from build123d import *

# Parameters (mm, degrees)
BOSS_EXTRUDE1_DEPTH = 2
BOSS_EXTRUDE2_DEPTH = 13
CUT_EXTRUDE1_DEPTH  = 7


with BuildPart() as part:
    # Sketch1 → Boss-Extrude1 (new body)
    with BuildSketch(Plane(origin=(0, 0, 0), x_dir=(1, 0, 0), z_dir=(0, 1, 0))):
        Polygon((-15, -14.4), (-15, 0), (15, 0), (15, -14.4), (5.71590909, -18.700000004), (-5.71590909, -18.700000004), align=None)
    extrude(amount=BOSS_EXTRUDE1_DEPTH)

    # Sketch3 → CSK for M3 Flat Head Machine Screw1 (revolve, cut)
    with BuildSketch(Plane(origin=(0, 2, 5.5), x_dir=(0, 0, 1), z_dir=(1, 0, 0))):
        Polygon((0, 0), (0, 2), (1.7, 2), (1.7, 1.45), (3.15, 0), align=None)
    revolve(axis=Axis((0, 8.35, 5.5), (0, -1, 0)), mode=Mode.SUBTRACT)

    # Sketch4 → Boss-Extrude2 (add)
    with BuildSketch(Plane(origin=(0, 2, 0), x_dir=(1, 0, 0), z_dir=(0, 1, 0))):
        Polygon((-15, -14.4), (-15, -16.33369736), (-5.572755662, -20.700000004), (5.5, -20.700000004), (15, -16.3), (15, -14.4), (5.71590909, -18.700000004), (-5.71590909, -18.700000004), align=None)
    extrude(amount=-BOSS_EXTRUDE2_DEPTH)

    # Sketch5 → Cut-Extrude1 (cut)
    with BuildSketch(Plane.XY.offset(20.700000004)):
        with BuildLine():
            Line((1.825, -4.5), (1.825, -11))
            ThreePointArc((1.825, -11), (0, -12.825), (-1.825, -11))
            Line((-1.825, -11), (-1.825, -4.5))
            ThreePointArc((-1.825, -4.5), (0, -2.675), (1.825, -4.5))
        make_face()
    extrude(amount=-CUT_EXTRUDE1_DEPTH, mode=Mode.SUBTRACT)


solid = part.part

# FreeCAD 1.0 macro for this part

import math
import FreeCAD as App
import Part
import Sketcher
from FreeCAD import Vector
Q = App.Units.Quantity

doc = App.newDocument("Part")
body = doc.addObject("PartDesign::Body", "Body")

sketch1 = body.newObject("Sketcher::SketchObject", "Sketch")
sketch1.AttachmentSupport = (doc.getObject("XZ_Plane"), [""])
sketch1.MapMode = "FlatFace"
sketch1.addGeometry([
    Part.LineSegment(Vector(-15, 0, 0), Vector(-15, 14, 0)),
    Part.LineSegment(Vector(-15, 14, 0), Vector(-6, 19, 0)),
    Part.LineSegment(Vector(-6, 19, 0), Vector(6, 19, 0)),
    Part.LineSegment(Vector(6, 19, 0), Vector(15, 14, 0)),
    Part.LineSegment(Vector(15, 14, 0), Vector(15, 0, 0)),
    Part.LineSegment(Vector(15, 0, 0), Vector(-15, 0, 0)),
], False)
sketch1.addConstraint([
    Sketcher.Constraint("Coincident", 0, 2, 1, 1),
    Sketcher.Constraint("Coincident", 1, 2, 2, 1),
    Sketcher.Constraint("Coincident", 2, 2, 3, 1),
    Sketcher.Constraint("Coincident", 3, 2, 4, 1),
    Sketcher.Constraint("Coincident", 4, 2, 5, 1),
    Sketcher.Constraint("Coincident", 5, 2, 0, 1),
    Sketcher.Constraint("Vertical", 0),
    Sketcher.Constraint("Horizontal", 2),
    Sketcher.Constraint("Vertical", 4),
    Sketcher.Constraint("Horizontal", 5),
    Sketcher.Constraint("Symmetric", 4, 2, 5, 2, -1, 1),
    Sketcher.Constraint("Horizontal", 0, 2, 3, 2),
    Sketcher.Constraint("Equal", 1, 3),
    Sketcher.Constraint("DistanceX", 5, 2, 5, 1, 30.0),
    Sketcher.Constraint("DistanceY", 0, 1, 0, 2, 14.4),
    Sketcher.Constraint("DistanceY", -1, 1, 1, 2, 18.7),
    Sketcher.Constraint("DistanceX", 2, 1, 2, 2, 11.431818),
])
pad1 = body.newObject("PartDesign::Pad", "Pad")
pad1.Profile = sketch1
pad1.Length = 2
pad1.Reversed = True

sketch2 = body.newObject("Sketcher::SketchObject", "Sketch001")
sketch2.AttachmentSupport = (doc.getObject("YZ_Plane"), [""])
sketch2.MapMode = "FlatFace"
sketch2.addGeometry([
    Part.LineSegment(Vector(0, 5.5, 0), Vector(2, 5.5, 0)),
    Part.LineSegment(Vector(2, 5.5, 0), Vector(2, 8.7, 0)),
    Part.LineSegment(Vector(2, 8.7, 0), Vector(0.6, 7.2, 0)),
    Part.LineSegment(Vector(0.6, 7.2, 0), Vector(0, 7.2, 0)),
    Part.LineSegment(Vector(0, 7.2, 0), Vector(0, 5.5, 0)),
], False)
sketch2.addGeometry(Part.LineSegment(Vector(2, 5.5, 0), Vector(0, 5.5, 0)), True)
sketch2.addConstraint([
    Sketcher.Constraint("Coincident", 0, 2, 1, 1),
    Sketcher.Constraint("Coincident", 1, 2, 2, 1),
    Sketcher.Constraint("Coincident", 2, 2, 3, 1),
    Sketcher.Constraint("Coincident", 3, 2, 4, 1),
    Sketcher.Constraint("Coincident", 4, 2, 0, 1),
    Sketcher.Constraint("Horizontal", 0),
    Sketcher.Constraint("Vertical", 1),
    Sketcher.Constraint("Horizontal", 3),
    Sketcher.Constraint("Vertical", 4),
    Sketcher.Constraint("Horizontal", 5),
    Sketcher.Constraint("Coincident", 5, 1, 0, 2),
    Sketcher.Constraint("PointOnObject", 3, 2, -2),
    Sketcher.Constraint("PointOnObject", 5, 2, -2),
    Sketcher.Constraint("DistanceX", 0, 1, 0, 2, 2.0),
    Sketcher.Constraint("Angle", 2, Q("-135 deg")),
    Sketcher.Constraint("DistanceY", 4, 2, 4, 1, 1.7),
    Sketcher.Constraint("DistanceX", 3, 2, 3, 1, 0.55),
    Sketcher.Constraint("DistanceY", -1, 1, 0, 2, 5.5),
])
groove = body.newObject("PartDesign::Groove", "Groove")
groove.Profile = sketch2
groove.ReferenceAxis = (sketch2, ["Axis0"])
groove.Angle = 360

sketch3 = body.newObject("Sketcher::SketchObject", "Sketch002")
sketch3.AttachmentSupport = (doc.getObject("XZ_Plane"), [""])
sketch3.MapMode = "FlatFace"
sketch3.AttachmentOffset = App.Placement(Vector(0, 0, -2), App.Rotation())
sketch3.addGeometry([
    Part.LineSegment(Vector(-15, 14.4, 0), Vector(-15, 16.3, 0)),
    Part.LineSegment(Vector(-15, 16.3, 0), Vector(-5.6, 20.7, 0)),
    Part.LineSegment(Vector(-5.6, 20.7, 0), Vector(5.5, 20.7, 0)),
    Part.LineSegment(Vector(5.5, 20.7, 0), Vector(15, 16.3, 0)),
    Part.LineSegment(Vector(15, 16.3, 0), Vector(15, 14.4, 0)),
    Part.LineSegment(Vector(15, 14.4, 0), Vector(5.7, 18.7, 0)),
    Part.LineSegment(Vector(5.7, 18.7, 0), Vector(-5.7, 18.7, 0)),
    Part.LineSegment(Vector(-5.7, 18.7, 0), Vector(-15, 14.4, 0)),
], False)
sketch3.addConstraint([
    Sketcher.Constraint("Coincident", 0, 2, 1, 1),
    Sketcher.Constraint("Coincident", 1, 2, 2, 1),
    Sketcher.Constraint("Coincident", 2, 2, 3, 1),
    Sketcher.Constraint("Coincident", 3, 2, 4, 1),
    Sketcher.Constraint("Coincident", 4, 2, 5, 1),
    Sketcher.Constraint("Coincident", 5, 2, 6, 1),
    Sketcher.Constraint("Coincident", 6, 2, 7, 1),
    Sketcher.Constraint("Coincident", 7, 2, 0, 1),
    Sketcher.Constraint("Vertical", 0),
    Sketcher.Constraint("Horizontal", 2),
    Sketcher.Constraint("Vertical", 4),
    Sketcher.Constraint("Horizontal", 6),
    Sketcher.Constraint("Symmetric", 4, 2, 7, 2, -2),
    Sketcher.Constraint("Parallel", 3, 5),
    Sketcher.Constraint("Parallel", 1, 7),
    Sketcher.Constraint("Equal", 5, 7),
    Sketcher.Constraint("DistanceY", 4, 2, 4, 1, 1.9),
    Sketcher.Constraint("DistanceX", 0, 2, -1, 1, 15.0),
    Sketcher.Constraint("DistanceY", 5, 2, 2, 2, 2.0),
    Sketcher.Constraint("DistanceY", -1, 1, 1, 2, 20.7),
    Sketcher.Constraint("DistanceX", -1, 1, 2, 2, 5.5),
    Sketcher.Constraint("DistanceY", -1, 1, 3, 2, 16.3),
    Sketcher.Constraint("Distance", 1, 10.389299),
])
pad2 = body.newObject("PartDesign::Pad", "Pad001")
pad2.Profile = sketch3
pad2.Length = 13

sketch4 = body.newObject("Sketcher::SketchObject", "Sketch003")
sketch4.AttachmentSupport = (doc.getObject("XY_Plane"), [""])
sketch4.MapMode = "FlatFace"
sketch4.AttachmentOffset = App.Placement(Vector(0, 0, 20.7), App.Rotation())
sketch4.addGeometry([
    Part.LineSegment(Vector(1.8, -11, 0), Vector(1.8, -4.5, 0)),
    Part.ArcOfCircle(Part.Circle(Vector(0, -4.5, 0), Vector(0, 0, 1), 1.8), math.radians(0), math.radians(180)),
    Part.LineSegment(Vector(-1.8, -4.5, 0), Vector(-1.8, -11, 0)),
    Part.ArcOfCircle(Part.Circle(Vector(0, -11, 0), Vector(0, 0, 1), 1.8), math.radians(180), math.radians(360)),
], False)
sketch4.addConstraint([
    Sketcher.Constraint("Tangent", 0, 2, 1, 1),
    Sketcher.Constraint("Tangent", 1, 2, 2, 1),
    Sketcher.Constraint("Tangent", 2, 2, 3, 1),
    Sketcher.Constraint("Tangent", 3, 2, 0, 1),
    Sketcher.Constraint("Vertical", 0),
    Sketcher.Constraint("Vertical", 2),
    Sketcher.Constraint("PointOnObject", 1, 3, -2),
    Sketcher.Constraint("DistanceY", 0, 1, 0, 2, 6.5),
    Sketcher.Constraint("DistanceY", 3, 3, -1, 1, 11.0),
    Sketcher.Constraint("Radius", 1, 1.825),
])
pocket1 = body.newObject("PartDesign::Pocket", "Pocket")
pocket1.Profile = sketch4
pocket1.Length = 7

doc.recompute()
